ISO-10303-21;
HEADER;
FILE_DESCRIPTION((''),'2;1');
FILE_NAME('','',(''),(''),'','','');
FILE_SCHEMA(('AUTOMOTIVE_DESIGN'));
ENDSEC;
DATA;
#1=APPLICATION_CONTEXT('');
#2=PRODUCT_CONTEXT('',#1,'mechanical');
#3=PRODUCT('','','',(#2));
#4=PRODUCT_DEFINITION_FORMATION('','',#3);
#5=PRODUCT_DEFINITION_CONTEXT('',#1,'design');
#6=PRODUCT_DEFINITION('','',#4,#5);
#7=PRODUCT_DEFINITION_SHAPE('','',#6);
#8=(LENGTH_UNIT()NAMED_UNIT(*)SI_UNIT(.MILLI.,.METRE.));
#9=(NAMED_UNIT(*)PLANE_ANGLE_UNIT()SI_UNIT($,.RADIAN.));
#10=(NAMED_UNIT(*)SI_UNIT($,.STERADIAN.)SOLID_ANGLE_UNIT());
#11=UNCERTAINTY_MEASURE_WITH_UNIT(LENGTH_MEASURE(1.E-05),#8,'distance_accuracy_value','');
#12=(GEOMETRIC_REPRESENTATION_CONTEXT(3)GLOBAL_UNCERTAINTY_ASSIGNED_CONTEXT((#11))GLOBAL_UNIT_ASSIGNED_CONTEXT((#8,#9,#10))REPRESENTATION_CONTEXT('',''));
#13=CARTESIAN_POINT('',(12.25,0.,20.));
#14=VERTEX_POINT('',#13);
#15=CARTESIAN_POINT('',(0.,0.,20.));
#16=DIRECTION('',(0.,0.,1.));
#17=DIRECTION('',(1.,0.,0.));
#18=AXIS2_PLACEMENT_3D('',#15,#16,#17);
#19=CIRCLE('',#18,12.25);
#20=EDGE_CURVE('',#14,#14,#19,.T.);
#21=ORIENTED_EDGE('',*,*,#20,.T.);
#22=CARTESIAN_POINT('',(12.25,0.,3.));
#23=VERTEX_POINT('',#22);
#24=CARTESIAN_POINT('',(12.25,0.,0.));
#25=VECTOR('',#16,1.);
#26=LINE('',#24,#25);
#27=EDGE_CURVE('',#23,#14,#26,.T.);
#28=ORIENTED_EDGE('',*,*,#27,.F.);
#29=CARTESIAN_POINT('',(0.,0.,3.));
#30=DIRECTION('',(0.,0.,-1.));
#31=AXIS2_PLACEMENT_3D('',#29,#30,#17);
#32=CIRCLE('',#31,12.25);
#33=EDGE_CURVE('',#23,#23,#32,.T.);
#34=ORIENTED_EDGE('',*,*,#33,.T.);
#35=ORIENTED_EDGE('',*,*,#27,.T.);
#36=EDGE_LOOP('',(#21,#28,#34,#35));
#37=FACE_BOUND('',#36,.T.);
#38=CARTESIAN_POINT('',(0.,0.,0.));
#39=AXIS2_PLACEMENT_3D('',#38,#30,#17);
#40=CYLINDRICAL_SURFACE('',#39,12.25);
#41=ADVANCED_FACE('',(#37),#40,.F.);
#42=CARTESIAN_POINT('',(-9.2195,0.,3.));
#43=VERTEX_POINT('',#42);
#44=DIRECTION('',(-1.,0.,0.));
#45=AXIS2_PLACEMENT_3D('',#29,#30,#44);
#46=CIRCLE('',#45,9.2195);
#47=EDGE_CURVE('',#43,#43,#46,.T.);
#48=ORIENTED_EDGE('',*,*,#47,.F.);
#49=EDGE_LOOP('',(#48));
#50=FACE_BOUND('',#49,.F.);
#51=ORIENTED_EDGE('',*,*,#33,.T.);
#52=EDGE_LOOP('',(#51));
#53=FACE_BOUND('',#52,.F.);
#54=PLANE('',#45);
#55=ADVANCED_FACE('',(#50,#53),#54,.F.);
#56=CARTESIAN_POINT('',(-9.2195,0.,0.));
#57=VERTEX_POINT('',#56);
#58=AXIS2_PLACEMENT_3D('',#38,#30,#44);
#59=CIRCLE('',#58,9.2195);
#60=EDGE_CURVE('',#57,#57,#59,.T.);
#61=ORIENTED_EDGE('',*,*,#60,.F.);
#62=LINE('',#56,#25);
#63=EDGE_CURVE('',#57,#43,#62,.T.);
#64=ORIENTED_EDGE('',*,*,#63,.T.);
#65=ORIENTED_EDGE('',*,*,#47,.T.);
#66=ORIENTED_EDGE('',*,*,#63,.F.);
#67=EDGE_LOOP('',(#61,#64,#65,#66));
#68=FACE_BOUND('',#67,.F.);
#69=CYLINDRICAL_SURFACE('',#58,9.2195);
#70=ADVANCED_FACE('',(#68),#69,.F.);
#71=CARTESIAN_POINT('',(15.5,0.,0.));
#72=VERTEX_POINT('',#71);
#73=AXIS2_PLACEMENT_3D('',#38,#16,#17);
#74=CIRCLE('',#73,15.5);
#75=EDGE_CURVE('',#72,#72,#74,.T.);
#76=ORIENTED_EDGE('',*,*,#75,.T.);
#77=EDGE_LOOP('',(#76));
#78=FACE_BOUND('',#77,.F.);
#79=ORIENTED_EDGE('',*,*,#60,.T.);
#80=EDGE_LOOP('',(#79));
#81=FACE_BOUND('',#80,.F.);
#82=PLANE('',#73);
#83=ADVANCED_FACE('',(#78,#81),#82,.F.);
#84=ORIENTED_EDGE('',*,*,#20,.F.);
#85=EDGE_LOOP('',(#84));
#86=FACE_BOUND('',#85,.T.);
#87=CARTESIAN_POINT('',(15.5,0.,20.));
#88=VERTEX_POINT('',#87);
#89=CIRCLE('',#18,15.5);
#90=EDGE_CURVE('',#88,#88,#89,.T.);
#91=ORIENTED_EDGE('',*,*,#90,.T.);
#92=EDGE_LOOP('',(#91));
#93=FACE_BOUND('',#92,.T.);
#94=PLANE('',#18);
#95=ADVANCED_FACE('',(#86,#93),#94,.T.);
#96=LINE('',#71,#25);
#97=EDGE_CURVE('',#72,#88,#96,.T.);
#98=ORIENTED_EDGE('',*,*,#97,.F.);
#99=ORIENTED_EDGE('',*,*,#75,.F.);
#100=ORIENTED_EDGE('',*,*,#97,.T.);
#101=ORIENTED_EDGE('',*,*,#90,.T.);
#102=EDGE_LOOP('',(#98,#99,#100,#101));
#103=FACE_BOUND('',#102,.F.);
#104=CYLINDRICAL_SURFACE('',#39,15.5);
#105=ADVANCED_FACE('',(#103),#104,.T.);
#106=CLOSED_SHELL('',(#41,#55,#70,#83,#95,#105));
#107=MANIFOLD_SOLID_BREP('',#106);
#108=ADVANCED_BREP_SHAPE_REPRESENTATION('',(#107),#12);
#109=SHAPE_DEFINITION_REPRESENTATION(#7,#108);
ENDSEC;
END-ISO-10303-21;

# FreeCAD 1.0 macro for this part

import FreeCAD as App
import Part
import Sketcher

V = App.Vector

doc = App.newDocument("Part")
body = doc.addObject("PartDesign::Body", "Body")

# Sketch on XY plane
sketch1 = doc.addObject("Sketcher::SketchObject", "Sketch")
body.addObject(sketch1)
sketch1.AttachmentSupport = (doc.XY_Plane, [""])
sketch1.MapMode = "FlatFace"
sketch1.addGeometry([
    Part.Circle(V(0, 0, 0), V(0, 0, 1), 16),
    Part.Circle(V(0, 0, 0), V(0, 0, 1), 12),
], False)
sketch1.addConstraint([
    Sketcher.Constraint("Coincident", 0, 3, -1, 1),
    Sketcher.Constraint("Coincident", 1, 3, -1, 1),
    Sketcher.Constraint("Diameter", 0, 31.0),
    Sketcher.Constraint("Diameter", 1, 24.5),
])
pad1 = doc.addObject("PartDesign::Pad", "Pad")
body.addObject(pad1)
pad1.Profile = sketch1
pad1.Length = 20

# Sketch on XY plane
sketch2 = doc.addObject("Sketcher::SketchObject", "Sketch001")
body.addObject(sketch2)
sketch2.AttachmentSupport = (doc.XY_Plane, [""])
sketch2.MapMode = "FlatFace"
sketch2.addGeometry([
    Part.Circle(V(0, 0, 0), V(0, 0, 1), 12),
    Part.Circle(V(0, 0, 0), V(0, 0, 1), 9),
], False)
sketch2.addConstraint([
    Sketcher.Constraint("Coincident", 0, 3, -1, 1),
    Sketcher.Constraint("Coincident", 1, 3, -1, 1),
    Sketcher.Constraint("Diameter", 1, 18.439),
    Sketcher.Constraint("Diameter", 0, 24.5),
])
pad2 = doc.addObject("PartDesign::Pad", "Pad001")
body.addObject(pad2)
pad2.Profile = sketch2
pad2.Length = 3

doc.recompute()
